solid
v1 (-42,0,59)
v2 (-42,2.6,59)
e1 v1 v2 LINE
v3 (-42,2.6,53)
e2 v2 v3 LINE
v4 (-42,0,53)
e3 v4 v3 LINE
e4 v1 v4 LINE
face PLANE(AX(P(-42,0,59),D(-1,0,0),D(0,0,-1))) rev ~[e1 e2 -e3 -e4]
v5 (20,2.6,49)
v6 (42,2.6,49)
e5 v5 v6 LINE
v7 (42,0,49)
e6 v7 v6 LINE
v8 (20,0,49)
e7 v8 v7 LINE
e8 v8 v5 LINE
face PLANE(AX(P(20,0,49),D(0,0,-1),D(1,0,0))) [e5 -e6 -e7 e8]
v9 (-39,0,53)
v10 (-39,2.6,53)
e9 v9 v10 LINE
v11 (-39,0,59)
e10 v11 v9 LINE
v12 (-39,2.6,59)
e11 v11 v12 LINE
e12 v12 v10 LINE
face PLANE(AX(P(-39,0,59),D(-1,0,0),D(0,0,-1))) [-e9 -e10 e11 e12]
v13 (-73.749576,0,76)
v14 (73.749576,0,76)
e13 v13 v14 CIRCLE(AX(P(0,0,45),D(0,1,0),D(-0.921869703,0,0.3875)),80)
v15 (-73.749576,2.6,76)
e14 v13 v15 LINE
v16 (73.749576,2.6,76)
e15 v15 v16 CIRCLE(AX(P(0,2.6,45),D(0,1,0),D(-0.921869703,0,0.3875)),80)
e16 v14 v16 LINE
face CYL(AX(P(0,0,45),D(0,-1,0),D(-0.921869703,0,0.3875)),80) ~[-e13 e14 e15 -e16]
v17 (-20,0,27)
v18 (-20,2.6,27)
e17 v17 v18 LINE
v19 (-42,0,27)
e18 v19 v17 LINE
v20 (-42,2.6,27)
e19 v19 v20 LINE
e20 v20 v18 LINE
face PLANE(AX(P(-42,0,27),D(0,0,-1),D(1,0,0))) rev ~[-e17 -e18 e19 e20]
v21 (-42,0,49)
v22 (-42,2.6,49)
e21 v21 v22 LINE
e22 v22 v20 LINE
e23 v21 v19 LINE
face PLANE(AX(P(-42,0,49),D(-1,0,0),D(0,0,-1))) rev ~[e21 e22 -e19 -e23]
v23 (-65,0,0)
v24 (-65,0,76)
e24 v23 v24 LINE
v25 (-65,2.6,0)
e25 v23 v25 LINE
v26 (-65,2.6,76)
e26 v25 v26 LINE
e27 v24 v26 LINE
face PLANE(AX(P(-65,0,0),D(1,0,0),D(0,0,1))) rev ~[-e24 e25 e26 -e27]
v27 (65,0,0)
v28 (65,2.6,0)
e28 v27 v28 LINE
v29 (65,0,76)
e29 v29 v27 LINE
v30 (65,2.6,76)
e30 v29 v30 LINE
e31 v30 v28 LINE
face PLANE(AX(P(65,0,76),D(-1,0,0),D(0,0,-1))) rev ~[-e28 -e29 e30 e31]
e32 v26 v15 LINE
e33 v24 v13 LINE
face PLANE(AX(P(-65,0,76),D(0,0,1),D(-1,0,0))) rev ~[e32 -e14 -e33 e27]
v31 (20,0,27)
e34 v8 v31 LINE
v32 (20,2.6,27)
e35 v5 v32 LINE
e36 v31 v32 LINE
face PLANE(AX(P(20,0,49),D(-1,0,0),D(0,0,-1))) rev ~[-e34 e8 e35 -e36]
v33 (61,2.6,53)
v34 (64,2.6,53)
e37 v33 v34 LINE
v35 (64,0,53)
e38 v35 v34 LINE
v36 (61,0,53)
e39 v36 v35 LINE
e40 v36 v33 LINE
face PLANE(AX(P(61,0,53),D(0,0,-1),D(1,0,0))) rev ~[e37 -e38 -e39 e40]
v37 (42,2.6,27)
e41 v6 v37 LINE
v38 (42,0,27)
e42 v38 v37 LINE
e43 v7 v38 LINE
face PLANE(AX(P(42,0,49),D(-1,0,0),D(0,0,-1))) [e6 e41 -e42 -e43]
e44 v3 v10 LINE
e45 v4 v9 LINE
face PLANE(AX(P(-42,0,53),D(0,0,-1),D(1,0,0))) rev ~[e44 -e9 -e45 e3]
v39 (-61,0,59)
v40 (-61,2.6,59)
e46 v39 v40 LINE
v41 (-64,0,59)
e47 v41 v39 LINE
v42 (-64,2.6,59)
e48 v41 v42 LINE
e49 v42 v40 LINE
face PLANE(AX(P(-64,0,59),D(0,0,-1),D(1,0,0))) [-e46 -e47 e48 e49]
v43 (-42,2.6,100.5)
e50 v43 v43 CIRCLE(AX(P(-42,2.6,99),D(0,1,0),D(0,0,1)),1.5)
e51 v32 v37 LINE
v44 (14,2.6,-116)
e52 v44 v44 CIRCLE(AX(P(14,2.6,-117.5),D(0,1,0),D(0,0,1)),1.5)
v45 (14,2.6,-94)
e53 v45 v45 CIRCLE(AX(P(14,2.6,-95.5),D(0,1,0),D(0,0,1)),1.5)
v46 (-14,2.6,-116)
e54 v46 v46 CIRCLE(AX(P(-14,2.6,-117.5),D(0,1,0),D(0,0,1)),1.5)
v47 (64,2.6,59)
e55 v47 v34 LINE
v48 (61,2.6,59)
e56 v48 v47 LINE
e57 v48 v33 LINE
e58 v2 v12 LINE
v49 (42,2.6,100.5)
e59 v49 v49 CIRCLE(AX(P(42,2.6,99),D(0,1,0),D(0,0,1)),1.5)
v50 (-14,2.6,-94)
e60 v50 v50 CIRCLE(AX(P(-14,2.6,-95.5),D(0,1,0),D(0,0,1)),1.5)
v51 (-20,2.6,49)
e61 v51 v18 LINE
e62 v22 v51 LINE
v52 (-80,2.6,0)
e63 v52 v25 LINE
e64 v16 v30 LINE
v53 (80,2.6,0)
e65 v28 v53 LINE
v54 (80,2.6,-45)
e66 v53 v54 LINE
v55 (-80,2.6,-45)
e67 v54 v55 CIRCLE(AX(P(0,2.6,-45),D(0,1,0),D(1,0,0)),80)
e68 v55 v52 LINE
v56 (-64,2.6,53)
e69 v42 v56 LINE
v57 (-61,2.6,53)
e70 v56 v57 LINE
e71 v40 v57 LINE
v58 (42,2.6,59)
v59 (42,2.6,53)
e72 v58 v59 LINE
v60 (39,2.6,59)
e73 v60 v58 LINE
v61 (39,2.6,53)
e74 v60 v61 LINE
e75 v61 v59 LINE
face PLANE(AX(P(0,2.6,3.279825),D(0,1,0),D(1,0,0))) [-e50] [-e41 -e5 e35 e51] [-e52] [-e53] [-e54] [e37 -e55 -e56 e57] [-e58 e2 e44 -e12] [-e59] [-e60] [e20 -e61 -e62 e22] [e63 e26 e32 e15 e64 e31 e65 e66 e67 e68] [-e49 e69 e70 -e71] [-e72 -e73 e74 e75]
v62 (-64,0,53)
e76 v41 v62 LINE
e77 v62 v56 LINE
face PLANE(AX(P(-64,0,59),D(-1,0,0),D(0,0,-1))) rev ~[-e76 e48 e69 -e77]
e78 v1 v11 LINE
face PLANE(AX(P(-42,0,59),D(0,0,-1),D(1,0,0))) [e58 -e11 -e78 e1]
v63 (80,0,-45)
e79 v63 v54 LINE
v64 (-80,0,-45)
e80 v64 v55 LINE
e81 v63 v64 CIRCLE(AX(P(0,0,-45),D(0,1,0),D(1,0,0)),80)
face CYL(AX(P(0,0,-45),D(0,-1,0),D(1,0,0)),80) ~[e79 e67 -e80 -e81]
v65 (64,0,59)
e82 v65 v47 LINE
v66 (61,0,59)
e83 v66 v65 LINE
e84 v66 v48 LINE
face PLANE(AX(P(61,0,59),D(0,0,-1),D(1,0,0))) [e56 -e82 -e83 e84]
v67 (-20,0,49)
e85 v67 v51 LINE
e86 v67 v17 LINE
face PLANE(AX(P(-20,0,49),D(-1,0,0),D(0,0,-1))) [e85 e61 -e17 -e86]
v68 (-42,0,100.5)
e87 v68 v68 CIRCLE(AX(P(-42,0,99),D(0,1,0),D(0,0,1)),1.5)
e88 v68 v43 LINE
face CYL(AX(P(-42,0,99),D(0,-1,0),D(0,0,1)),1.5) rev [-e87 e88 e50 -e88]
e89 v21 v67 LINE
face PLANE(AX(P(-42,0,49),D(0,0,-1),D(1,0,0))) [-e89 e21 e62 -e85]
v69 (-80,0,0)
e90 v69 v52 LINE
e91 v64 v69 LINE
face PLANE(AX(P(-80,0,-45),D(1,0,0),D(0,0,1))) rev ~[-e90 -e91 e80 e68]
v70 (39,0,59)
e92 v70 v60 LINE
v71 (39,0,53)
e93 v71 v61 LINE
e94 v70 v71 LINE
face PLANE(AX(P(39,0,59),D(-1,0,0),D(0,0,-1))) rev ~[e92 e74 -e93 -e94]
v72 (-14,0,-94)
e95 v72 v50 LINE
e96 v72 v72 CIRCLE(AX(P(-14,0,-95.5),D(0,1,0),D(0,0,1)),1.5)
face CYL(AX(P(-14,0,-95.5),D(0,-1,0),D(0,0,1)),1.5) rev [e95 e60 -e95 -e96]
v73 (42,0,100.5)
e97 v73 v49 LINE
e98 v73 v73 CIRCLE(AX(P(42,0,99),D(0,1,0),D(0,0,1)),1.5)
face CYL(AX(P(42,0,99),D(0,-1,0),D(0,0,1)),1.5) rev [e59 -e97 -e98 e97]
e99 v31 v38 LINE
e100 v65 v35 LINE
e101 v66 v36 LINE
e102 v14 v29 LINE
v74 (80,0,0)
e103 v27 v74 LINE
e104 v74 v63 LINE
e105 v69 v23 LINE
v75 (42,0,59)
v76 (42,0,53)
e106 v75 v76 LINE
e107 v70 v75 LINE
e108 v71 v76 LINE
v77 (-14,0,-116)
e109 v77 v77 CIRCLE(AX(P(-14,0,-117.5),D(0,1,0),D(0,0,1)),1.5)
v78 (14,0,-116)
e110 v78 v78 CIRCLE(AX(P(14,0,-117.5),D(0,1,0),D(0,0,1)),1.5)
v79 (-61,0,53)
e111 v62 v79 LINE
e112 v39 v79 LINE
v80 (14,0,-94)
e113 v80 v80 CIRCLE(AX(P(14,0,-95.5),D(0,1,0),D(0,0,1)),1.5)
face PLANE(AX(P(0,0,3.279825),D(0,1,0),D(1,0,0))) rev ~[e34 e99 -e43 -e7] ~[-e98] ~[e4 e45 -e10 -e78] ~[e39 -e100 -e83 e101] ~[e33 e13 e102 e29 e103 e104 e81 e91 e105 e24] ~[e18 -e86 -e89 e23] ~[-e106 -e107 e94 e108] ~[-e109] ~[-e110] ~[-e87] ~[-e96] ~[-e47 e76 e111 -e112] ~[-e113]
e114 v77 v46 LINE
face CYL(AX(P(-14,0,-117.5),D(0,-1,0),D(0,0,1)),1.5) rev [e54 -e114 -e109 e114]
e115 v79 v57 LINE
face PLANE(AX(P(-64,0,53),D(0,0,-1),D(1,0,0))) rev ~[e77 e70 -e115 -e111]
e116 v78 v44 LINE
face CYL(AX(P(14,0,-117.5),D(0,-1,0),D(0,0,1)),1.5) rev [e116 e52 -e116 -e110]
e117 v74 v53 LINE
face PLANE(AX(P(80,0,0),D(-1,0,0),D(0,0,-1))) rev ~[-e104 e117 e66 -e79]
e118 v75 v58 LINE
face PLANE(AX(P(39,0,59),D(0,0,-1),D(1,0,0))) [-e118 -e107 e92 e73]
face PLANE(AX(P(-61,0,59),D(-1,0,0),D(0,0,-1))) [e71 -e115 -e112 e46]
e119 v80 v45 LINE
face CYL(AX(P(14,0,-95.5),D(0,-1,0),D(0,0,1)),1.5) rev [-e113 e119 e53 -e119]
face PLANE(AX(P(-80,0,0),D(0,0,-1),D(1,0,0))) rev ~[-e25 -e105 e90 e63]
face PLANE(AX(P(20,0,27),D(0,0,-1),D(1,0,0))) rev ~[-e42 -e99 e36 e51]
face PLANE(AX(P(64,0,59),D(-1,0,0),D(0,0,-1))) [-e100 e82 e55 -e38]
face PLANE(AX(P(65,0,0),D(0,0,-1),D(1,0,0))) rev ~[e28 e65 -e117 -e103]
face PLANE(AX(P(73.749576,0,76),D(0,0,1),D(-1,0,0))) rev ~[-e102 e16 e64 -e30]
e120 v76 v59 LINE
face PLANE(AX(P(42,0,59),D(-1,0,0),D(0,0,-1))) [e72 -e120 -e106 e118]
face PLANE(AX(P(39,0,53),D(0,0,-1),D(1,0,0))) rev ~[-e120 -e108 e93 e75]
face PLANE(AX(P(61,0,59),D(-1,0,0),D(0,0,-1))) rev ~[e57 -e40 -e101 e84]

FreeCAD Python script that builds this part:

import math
import FreeCAD as App
import Part
import Sketcher
Q = App.Units.Quantity


def add_polygon(sketch, points):
    """Adds a closed chain of lines whose ends are joined by coincident constraints."""
    first, n = sketch.GeometryCount, len(points)
    for a, b in zip(points, points[1:] + points[:1]):
        sketch.addGeometry(Part.LineSegment(App.Vector(*a, 0), App.Vector(*b, 0)), False)
    for i in range(n):
        sketch.addConstraint(Sketcher.Constraint("Coincident", first + i, 2, first + (i + 1) % n, 1))

doc = App.newDocument("Part")
body = doc.addObject("PartDesign::Body", "Body")

# Sketch on XZ plane
sketch1 = body.newObject("Sketcher::SketchObject", "Sketch")
sketch1.AttachmentSupport = (doc.getObject("XZ_Plane"), [""])
sketch1.MapMode = "FlatFace"
sketch1.addGeometry(Part.LineSegment(App.Vector(-80, -45, 0), App.Vector(-80, 0, 0)), False)  # 0
sketch1.addGeometry(Part.LineSegment(App.Vector(-80, 0, 0), App.Vector(-65, 0, 0)), False)  # 1
sketch1.addGeometry(Part.LineSegment(App.Vector(-65, 0, 0), App.Vector(-65, 76, 0)), False)  # 2
sketch1.addGeometry(Part.LineSegment(App.Vector(-65, 76, 0), App.Vector(-73.7, 76, 0)), False)  # 3
sketch1.addGeometry(Part.ArcOfCircle(Part.Circle(App.Vector(0, 45, 0), App.Vector(0, 0, 1), 80), math.radians(23), math.radians(157)), False)  # 4
sketch1.addGeometry(Part.LineSegment(App.Vector(73.7, 76, 0), App.Vector(65, 76, 0)), False)  # 5
sketch1.addGeometry(Part.LineSegment(App.Vector(65, 76, 0), App.Vector(65, 0, 0)), False)  # 6
sketch1.addGeometry(Part.LineSegment(App.Vector(65, 0, 0), App.Vector(80, 0, 0)), False)  # 7
sketch1.addGeometry(Part.LineSegment(App.Vector(80, 0, 0), App.Vector(80, -45, 0)), False)  # 8
sketch1.addGeometry(Part.ArcOfCircle(Part.Circle(App.Vector(0, -45, 0), App.Vector(0, 0, 1), 80), math.radians(180), math.radians(360)), False)  # 9
sketch1.addGeometry(Part.Circle(App.Vector(-42, 99, 0), App.Vector(0, 0, 1), 1.5), False)  # 10
add_polygon(sketch1, [(-61, 59), (-64, 59), (-64, 53), (-61, 53)])  # lines 11-14
add_polygon(sketch1, [(-39, 59), (-42, 59), (-42, 53), (-39, 53)])  # lines 15-18
add_polygon(sketch1, [(-20, 49), (-42, 49), (-42, 27), (-20, 27)])  # lines 19-22
sketch1.addGeometry(Part.Circle(App.Vector(42, 99, 0), App.Vector(0, 0, 1), 1.5), False)  # 23
add_polygon(sketch1, [(42, 59), (39, 59), (39, 53), (42, 53)])  # lines 24-27
add_polygon(sketch1, [(64, 59), (61, 59), (61, 53), (64, 53)])  # lines 28-31
add_polygon(sketch1, [(42, 49), (20, 49), (20, 27), (42, 27)])  # lines 32-35
sketch1.addGeometry(Part.Circle(App.Vector(-14, -95.5, 0), App.Vector(0, 0, 1), 1.5), False)  # 36
sketch1.addGeometry(Part.Circle(App.Vector(-14, -117.5, 0), App.Vector(0, 0, 1), 1.5), False)  # 37
sketch1.addGeometry(Part.Circle(App.Vector(14, -95.5, 0), App.Vector(0, 0, 1), 1.5), False)  # 38
sketch1.addGeometry(Part.Circle(App.Vector(14, -117.5, 0), App.Vector(0, 0, 1), 1.5), False)  # 39
sketch1.addConstraint([
    Sketcher.Constraint("Coincident", 0, 2, 1, 1),
    Sketcher.Constraint("Coincident", 1, 2, 2, 1),
    Sketcher.Constraint("Coincident", 2, 2, 3, 1),
    Sketcher.Constraint("Coincident", 3, 2, 4, 2),
    Sketcher.Constraint("Coincident", 4, 1, 5, 1),
    Sketcher.Constraint("Coincident", 5, 2, 6, 1),
    Sketcher.Constraint("Coincident", 6, 2, 7, 1),
    Sketcher.Constraint("Coincident", 7, 2, 8, 1),
    Sketcher.Constraint("Tangent", 8, 2, 9, 2),
    Sketcher.Constraint("Tangent", 9, 1, 0, 1),
    Sketcher.Constraint("Vertical", 0),
    Sketcher.Constraint("Horizontal", 1),
    Sketcher.Constraint("Vertical", 2),
    Sketcher.Constraint("Horizontal", 3),
    Sketcher.Constraint("Horizontal", 5),
    Sketcher.Constraint("Vertical", 6),
    Sketcher.Constraint("Horizontal", 7),
    Sketcher.Constraint("Vertical", 8),
    Sketcher.Constraint("Horizontal", 11),
    Sketcher.Constraint("Vertical", 12),
    Sketcher.Constraint("Horizontal", 13),
    Sketcher.Constraint("Vertical", 14),
    Sketcher.Constraint("Horizontal", 15),
    Sketcher.Constraint("Vertical", 16),
    Sketcher.Constraint("Horizontal", 17),
    Sketcher.Constraint("Vertical", 18),
    Sketcher.Constraint("Horizontal", 19),
    Sketcher.Constraint("Vertical", 20),
    Sketcher.Constraint("Horizontal", 21),
    Sketcher.Constraint("Vertical", 22),
    Sketcher.Constraint("Horizontal", 24),
    Sketcher.Constraint("Vertical", 25),
    Sketcher.Constraint("Horizontal", 26),
    Sketcher.Constraint("Vertical", 27),
    Sketcher.Constraint("Horizontal", 28),
    Sketcher.Constraint("Vertical", 29),
    Sketcher.Constraint("Horizontal", 30),
    Sketcher.Constraint("Vertical", 31),
    Sketcher.Constraint("Horizontal", 32),
    Sketcher.Constraint("Vertical", 33),
    Sketcher.Constraint("Horizontal", 34),
    Sketcher.Constraint("Vertical", 35),
    Sketcher.Constraint("Equal", 4, 9),
    Sketcher.Constraint("Equal", 10, 23),
    Sketcher.Constraint("Equal", 23, 36),
    Sketcher.Constraint("Equal", 36, 37),
    Sketcher.Constraint("Equal", 37, 38),
    Sketcher.Constraint("Equal", 38, 39),
    Sketcher.Constraint("Symmetric", 4, 3, 9, 3, -1, 1),
    Sketcher.Constraint("Symmetric", 1, 2, 6, 2, -1, 1),
    Sketcher.Constraint("Symmetric", 10, 3, 23, 3, -2),
    Sketcher.Constraint("Symmetric", 36, 3, 38, 3, -2),
    Sketcher.Constraint("Symmetric", 37, 3, 39, 3, -2),
    Sketcher.Constraint("Symmetric", 3, 2, 4, 1, -2),
    Sketcher.Constraint("Symmetric", 18, 2, 24, 2, -2),
    Sketcher.Constraint("Symmetric", 16, 2, 26, 2, -2),
    Sketcher.Constraint("Symmetric", 14, 2, 28, 2, -2),
    Sketcher.Constraint("Symmetric", 12, 2, 30, 2, -2),
    Sketcher.Constraint("Symmetric", 22, 2, 32, 2, -2),
    Sketcher.Constraint("Symmetric", 20, 2, 34, 2, -2),
    Sketcher.Constraint("PointOnObject", 0, 2, -1),
    Sketcher.Constraint("Horizontal", 14, 2, 15, 2),
    Sketcher.Constraint("Horizontal", 13, 2, 16, 2),
    Sketcher.Constraint("Vertical", 36, 3, 37, 3),
    Sketcher.Constraint("Vertical", 10, 3, 15, 2),
    Sketcher.Constraint("Vertical", 16, 2, 19, 2),
    Sketcher.Constraint("Equal", 13, 15),
    Sketcher.Constraint("Equal", 34, 20),
    Sketcher.Constraint("Diameter", 10, Q("3 mm")),
    Sketcher.Constraint("Radius", 4, Q("80 mm")),
    Sketcher.Constraint("DistanceX", 1, 1, 1, 2, Q("15 mm")),
    Sketcher.Constraint("DistanceX", 11, 2, 11, 1, Q("3 mm")),
    Sketcher.Constraint("DistanceX", 19, 2, 19, 1, Q("22 mm")),
    Sketcher.Constraint("DistanceY", 0, 1, 0, 2, Q("45 mm")),
    Sketcher.Constraint("DistanceY", 2, 1, 2, 2, Q("76 mm")),
    Sketcher.Constraint("DistanceY", 12, 2, 12, 1, Q("6 mm")),
    Sketcher.Constraint("DistanceX", 10, 3, -1, 1, Q("42 mm")),
    Sketcher.Constraint("DistanceY", -1, 1, 10, 3, Q("99 mm")),
    Sketcher.Constraint("DistanceX", 36, 3, -1, 1, Q("14 mm")),
    Sketcher.Constraint("DistanceX", 11, 2, -1, 1, Q("64 mm")),
    Sketcher.Constraint("DistanceY", -1, 1, 11, 2, Q("59 mm")),
    Sketcher.Constraint("DistanceY", -1, 1, 19, 2, Q("49 mm")),
    Sketcher.Constraint("DistanceY", 37, 3, 36, 3, Q("22 mm")),
    Sketcher.Constraint("DistanceY", 36, 3, -1, 1, Q("95.5 mm")),
])
pad1 = body.newObject("PartDesign::Pad", "Pad")
pad1.Profile = sketch1
pad1.Length = 2.6
pad1.Reversed = True

doc.recompute()
